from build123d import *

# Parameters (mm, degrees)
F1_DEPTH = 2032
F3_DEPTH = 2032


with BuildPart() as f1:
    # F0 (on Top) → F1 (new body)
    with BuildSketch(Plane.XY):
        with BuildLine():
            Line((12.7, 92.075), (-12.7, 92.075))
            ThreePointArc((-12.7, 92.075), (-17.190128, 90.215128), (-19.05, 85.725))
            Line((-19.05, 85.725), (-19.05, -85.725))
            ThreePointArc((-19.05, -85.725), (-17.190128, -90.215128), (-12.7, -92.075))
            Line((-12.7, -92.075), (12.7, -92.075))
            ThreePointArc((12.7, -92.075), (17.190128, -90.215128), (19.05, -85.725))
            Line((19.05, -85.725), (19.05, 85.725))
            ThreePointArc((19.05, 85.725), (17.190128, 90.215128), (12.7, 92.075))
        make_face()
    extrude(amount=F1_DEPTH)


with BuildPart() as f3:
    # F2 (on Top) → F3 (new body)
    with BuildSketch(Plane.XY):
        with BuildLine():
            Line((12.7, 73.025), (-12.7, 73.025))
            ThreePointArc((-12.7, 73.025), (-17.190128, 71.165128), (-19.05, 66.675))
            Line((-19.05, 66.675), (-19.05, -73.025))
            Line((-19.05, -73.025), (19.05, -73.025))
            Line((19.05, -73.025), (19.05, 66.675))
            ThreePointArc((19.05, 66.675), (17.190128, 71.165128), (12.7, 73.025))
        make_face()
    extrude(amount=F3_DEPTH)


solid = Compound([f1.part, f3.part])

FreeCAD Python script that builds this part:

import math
import FreeCAD as App
import Part
import Sketcher
Q = App.Units.Quantity

doc = App.newDocument("Part")
body = doc.addObject("PartDesign::Body", "Body")

# Sketch on XY plane
sketch1 = body.newObject("Sketcher::SketchObject", "Sketch")
sketch1.AttachmentSupport = (doc.getObject("XY_Plane"), [""])
sketch1.MapMode = "FlatFace"
sketch1.addGeometry([
    Part.LineSegment(App.Vector(13, 92, 0), App.Vector(-13, 92, 0)),  # 0
    Part.ArcOfCircle(Part.Circle(App.Vector(-13, 86, 0), App.Vector(0, 0, 1), 6), math.radians(90), math.radians(180)),  # 1
    Part.LineSegment(App.Vector(-19, 86, 0), App.Vector(-19, -86, 0)),  # 2
    Part.ArcOfCircle(Part.Circle(App.Vector(-13, -86, 0), App.Vector(0, 0, 1), 6), math.radians(-180), math.radians(-90)),  # 3
    Part.LineSegment(App.Vector(-13, -92, 0), App.Vector(13, -92, 0)),  # 4
    Part.ArcOfCircle(Part.Circle(App.Vector(13, -86, 0), App.Vector(0, 0, 1), 6), math.radians(-90), math.radians(0)),  # 5
    Part.LineSegment(App.Vector(19, -86, 0), App.Vector(19, 86, 0)),  # 6
    Part.ArcOfCircle(Part.Circle(App.Vector(13, 86, 0), App.Vector(0, 0, 1), 6), math.radians(0), math.radians(90)),  # 7
], False)
sketch1.addConstraint([
    Sketcher.Constraint("Tangent", 0, 2, 1, 1),
    Sketcher.Constraint("Tangent", 1, 2, 2, 1),
    Sketcher.Constraint("Tangent", 2, 2, 3, 1),
    Sketcher.Constraint("Tangent", 3, 2, 4, 1),
    Sketcher.Constraint("Tangent", 4, 2, 5, 1),
    Sketcher.Constraint("Tangent", 5, 2, 6, 1),
    Sketcher.Constraint("Tangent", 6, 2, 7, 1),
    Sketcher.Constraint("Tangent", 7, 2, 0, 1),
    Sketcher.Constraint("Horizontal", 0),
    Sketcher.Constraint("Vertical", 2),
    Sketcher.Constraint("Horizontal", 4),
    Sketcher.Constraint("Vertical", 6),
    Sketcher.Constraint("Equal", 1, 3),
    Sketcher.Constraint("Equal", 3, 5),
    Sketcher.Constraint("Equal", 5, 7),
    Sketcher.Constraint("Symmetric", 1, 3, 5, 3, -1, 1),
    Sketcher.Constraint("DistanceX", 0, 2, 0, 1, Q("1 in")),
    Sketcher.Constraint("Radius", 1, Q("0.25 in")),
    Sketcher.Constraint("DistanceY", 3, 3, 0, 2, Q("7 in")),
])
pad1 = body.newObject("PartDesign::Pad", "Pad")
pad1.Profile = sketch1
pad1.Length = Q("80 in")
body2 = doc.addObject("PartDesign::Body", "Body001")

# Sketch on XY plane
sketch2 = body2.newObject("Sketcher::SketchObject", "Sketch001")
sketch2.AttachmentSupport = (doc.getObject("XY_Plane001"), [""])
sketch2.MapMode = "FlatFace"
sketch2.addGeometry([
    Part.LineSegment(App.Vector(13, 73, 0), App.Vector(-13, 73, 0)),  # 0
    Part.ArcOfCircle(Part.Circle(App.Vector(-13, 67, 0), App.Vector(0, 0, 1), 6), math.radians(90), math.radians(180)),  # 1
    Part.LineSegment(App.Vector(-19, 67, 0), App.Vector(-19, -73, 0)),  # 2
    Part.LineSegment(App.Vector(-19, -73, 0), App.Vector(19, -73, 0)),  # 3
    Part.LineSegment(App.Vector(19, -73, 0), App.Vector(19, 67, 0)),  # 4
    Part.ArcOfCircle(Part.Circle(App.Vector(13, 67, 0), App.Vector(0, 0, 1), 6), math.radians(0), math.radians(90)),  # 5
], False)
sketch2.addConstraint([
    Sketcher.Constraint("Tangent", 0, 2, 1, 1),
    Sketcher.Constraint("Tangent", 1, 2, 2, 1),
    Sketcher.Constraint("Coincident", 2, 2, 3, 1),
    Sketcher.Constraint("Coincident", 3, 2, 4, 1),
    Sketcher.Constraint("Tangent", 4, 2, 5, 1),
    Sketcher.Constraint("Tangent", 5, 2, 0, 1),
    Sketcher.Constraint("Horizontal", 0),
    Sketcher.Constraint("Vertical", 2),
    Sketcher.Constraint("Horizontal", 3),
    Sketcher.Constraint("Vertical", 4),
    Sketcher.Constraint("Equal", 1, 5),
    Sketcher.Constraint("DistanceX", 0, 2, 0, 1, Q("1 in")),
    Sketcher.Constraint("Radius", 1, Q("0.25 in")),
    Sketcher.Constraint("DistanceY", 2, 2, 2, 1, Q("5.5 in")),
    Sketcher.Constraint("DistanceX", 1, 3, -1, 1, Q("0.5 in")),
    Sketcher.Constraint("DistanceY", -1, 1, 1, 3, Q("2.625 in")),
])
pad2 = body2.newObject("PartDesign::Pad", "Pad001")
pad2.Profile = sketch2
pad2.Length = Q("80 in")

doc.recompute()
